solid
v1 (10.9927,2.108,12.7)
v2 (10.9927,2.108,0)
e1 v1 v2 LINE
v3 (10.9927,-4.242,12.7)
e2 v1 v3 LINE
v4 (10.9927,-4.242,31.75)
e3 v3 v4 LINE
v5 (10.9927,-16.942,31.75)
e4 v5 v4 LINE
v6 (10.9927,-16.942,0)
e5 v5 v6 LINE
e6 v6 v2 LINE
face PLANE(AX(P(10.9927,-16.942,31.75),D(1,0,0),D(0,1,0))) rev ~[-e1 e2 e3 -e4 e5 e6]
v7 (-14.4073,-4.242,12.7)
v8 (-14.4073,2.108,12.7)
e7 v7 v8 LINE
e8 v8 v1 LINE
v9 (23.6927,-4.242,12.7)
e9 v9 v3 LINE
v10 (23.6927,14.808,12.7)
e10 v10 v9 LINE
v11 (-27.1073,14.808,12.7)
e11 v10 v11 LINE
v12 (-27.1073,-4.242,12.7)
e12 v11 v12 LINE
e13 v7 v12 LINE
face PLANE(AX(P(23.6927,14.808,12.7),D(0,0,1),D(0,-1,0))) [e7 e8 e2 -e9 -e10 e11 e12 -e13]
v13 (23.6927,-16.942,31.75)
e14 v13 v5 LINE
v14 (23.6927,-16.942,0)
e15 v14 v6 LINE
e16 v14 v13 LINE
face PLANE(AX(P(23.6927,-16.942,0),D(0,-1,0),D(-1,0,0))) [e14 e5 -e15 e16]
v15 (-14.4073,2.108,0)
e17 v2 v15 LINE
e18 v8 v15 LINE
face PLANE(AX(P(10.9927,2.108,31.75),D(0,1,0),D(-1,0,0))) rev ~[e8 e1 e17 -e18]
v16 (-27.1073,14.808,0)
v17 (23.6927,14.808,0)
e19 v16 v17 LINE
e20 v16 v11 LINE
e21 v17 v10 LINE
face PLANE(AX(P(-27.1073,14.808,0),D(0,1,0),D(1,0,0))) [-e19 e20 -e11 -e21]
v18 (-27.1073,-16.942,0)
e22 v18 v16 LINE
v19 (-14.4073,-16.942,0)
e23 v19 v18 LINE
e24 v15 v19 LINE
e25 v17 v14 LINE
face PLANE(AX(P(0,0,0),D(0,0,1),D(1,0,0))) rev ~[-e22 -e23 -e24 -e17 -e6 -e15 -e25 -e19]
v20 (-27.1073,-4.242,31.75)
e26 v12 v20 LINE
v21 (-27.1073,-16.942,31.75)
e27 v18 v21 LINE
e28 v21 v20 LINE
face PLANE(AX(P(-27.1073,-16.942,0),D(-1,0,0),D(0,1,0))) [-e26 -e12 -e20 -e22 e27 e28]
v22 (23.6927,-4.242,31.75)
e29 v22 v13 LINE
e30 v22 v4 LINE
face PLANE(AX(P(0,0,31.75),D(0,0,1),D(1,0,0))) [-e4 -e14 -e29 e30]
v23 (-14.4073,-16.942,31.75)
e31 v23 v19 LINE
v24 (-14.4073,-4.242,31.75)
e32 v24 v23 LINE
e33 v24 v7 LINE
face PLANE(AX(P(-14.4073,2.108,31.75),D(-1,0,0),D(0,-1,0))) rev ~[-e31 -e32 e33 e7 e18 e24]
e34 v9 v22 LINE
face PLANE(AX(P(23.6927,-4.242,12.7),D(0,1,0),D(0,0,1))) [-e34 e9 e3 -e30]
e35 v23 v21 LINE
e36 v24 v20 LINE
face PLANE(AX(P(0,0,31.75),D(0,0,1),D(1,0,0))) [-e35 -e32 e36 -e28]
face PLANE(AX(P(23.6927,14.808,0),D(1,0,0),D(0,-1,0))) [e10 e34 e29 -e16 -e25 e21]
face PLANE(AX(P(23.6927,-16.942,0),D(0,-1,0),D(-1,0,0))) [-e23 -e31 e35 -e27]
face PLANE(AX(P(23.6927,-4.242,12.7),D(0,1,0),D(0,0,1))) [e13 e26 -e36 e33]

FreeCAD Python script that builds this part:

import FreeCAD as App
import Part
import Sketcher
Q = App.Units.Quantity


def add_polygon(sketch, points):
    """Adds a closed chain of lines whose ends are joined by coincident constraints."""
    first, n = sketch.GeometryCount, len(points)
    for a, b in zip(points, points[1:] + points[:1]):
        sketch.addGeometry(Part.LineSegment(App.Vector(*a, 0), App.Vector(*b, 0)), False)
    for i in range(n):
        sketch.addConstraint(Sketcher.Constraint("Coincident", first + i, 2, first + (i + 1) % n, 1))

doc = App.newDocument("Part")
body = doc.addObject("PartDesign::Body", "Body")

# Sketch on XY plane
sketch1 = doc.addObject("Sketcher::SketchObject", "Sketch")
body.addObject(sketch1)
sketch1.AttachmentSupport = (doc.XY_Plane, [""])
sketch1.MapMode = "FlatFace"
add_polygon(sketch1, [(24, 15), (-27, 15), (-27, -17), (24, -17)])  # lines 0-3
sketch1.addConstraint([
    Sketcher.Constraint("Horizontal", 0),
    Sketcher.Constraint("Vertical", 1),
    Sketcher.Constraint("Horizontal", 2),
    Sketcher.Constraint("Vertical", 3),
    Sketcher.Constraint("DistanceX", 0, 2, 0, 1, Q("2 in")),
    Sketcher.Constraint("DistanceY", 1, 2, 1, 1, Q("1.25 in")),
    Sketcher.Constraint("DistanceY", -1, 1, 0, 2, Q("0.583 in")),
    Sketcher.Constraint("DistanceX", 0, 2, -1, 1, 27.1073),
])
pad1 = doc.addObject("PartDesign::Pad", "Pad")
body.addObject(pad1)
pad1.Profile = sketch1
pad1.Length = Q("1.25 in")

# Sketch on XY plane
sketch2 = doc.addObject("Sketcher::SketchObject", "Sketch001")
body.addObject(sketch2)
sketch2.AttachmentSupport = (doc.XY_Plane, [""])
sketch2.MapMode = "FlatFace"
sketch2.AttachmentOffset = App.Placement(App.Vector(0, 0, 1.25 * 25.4), App.Rotation())
add_polygon(sketch2, [(-14, 2), (-14, -17), (11, -17), (11, 2)])  # lines 0-3
sketch2.addConstraint([
    Sketcher.Constraint("Vertical", 0),
    Sketcher.Constraint("Horizontal", 1),
    Sketcher.Constraint("Vertical", 2),
    Sketcher.Constraint("Horizontal", 3),
    Sketcher.Constraint("DistanceY", 0, 2, 0, 1, Q("0.75 in")),
    Sketcher.Constraint("DistanceX", 1, 1, 1, 2, Q("1 in")),
    Sketcher.Constraint("DistanceY", 0, 2, -1, 1, Q("0.667 in")),
    Sketcher.Constraint("DistanceX", 0, 2, -1, 1, 14.4073),
])
pocket1 = doc.addObject("PartDesign::Pocket", "Pocket")
body.addObject(pocket1)
pocket1.Profile = sketch2
pocket1.Length = Q("1.25 in")

# Sketch on YZ plane
sketch3 = doc.addObject("Sketcher::SketchObject", "Sketch002")
body.addObject(sketch3)
sketch3.AttachmentSupport = (doc.YZ_Plane, [""])
sketch3.MapMode = "FlatFace"
sketch3.AttachmentOffset = App.Placement(App.Vector(0, 0, 23.6927), App.Rotation())
add_polygon(sketch3, [(15, 32), (-4, 32), (-4, 13), (15, 13)])  # lines 0-3
sketch3.addConstraint([
    Sketcher.Constraint("Horizontal", 0),
    Sketcher.Constraint("Vertical", 1),
    Sketcher.Constraint("Horizontal", 2),
    Sketcher.Constraint("Vertical", 3),
    Sketcher.Constraint("Equal", 2, 1),
    Sketcher.Constraint("DistanceX", 0, 2, 0, 1, Q("0.75 in")),
    Sketcher.Constraint("DistanceY", -1, 1, 1, 2, Q("0.5 in")),
    Sketcher.Constraint("DistanceX", 0, 2, -1, 1, Q("0.167 in")),
])
pocket2 = doc.addObject("PartDesign::Pocket", "Pocket001")
body.addObject(pocket2)
pocket2.Profile = sketch3
pocket2.Length = Q("2 in")

doc.recompute()
